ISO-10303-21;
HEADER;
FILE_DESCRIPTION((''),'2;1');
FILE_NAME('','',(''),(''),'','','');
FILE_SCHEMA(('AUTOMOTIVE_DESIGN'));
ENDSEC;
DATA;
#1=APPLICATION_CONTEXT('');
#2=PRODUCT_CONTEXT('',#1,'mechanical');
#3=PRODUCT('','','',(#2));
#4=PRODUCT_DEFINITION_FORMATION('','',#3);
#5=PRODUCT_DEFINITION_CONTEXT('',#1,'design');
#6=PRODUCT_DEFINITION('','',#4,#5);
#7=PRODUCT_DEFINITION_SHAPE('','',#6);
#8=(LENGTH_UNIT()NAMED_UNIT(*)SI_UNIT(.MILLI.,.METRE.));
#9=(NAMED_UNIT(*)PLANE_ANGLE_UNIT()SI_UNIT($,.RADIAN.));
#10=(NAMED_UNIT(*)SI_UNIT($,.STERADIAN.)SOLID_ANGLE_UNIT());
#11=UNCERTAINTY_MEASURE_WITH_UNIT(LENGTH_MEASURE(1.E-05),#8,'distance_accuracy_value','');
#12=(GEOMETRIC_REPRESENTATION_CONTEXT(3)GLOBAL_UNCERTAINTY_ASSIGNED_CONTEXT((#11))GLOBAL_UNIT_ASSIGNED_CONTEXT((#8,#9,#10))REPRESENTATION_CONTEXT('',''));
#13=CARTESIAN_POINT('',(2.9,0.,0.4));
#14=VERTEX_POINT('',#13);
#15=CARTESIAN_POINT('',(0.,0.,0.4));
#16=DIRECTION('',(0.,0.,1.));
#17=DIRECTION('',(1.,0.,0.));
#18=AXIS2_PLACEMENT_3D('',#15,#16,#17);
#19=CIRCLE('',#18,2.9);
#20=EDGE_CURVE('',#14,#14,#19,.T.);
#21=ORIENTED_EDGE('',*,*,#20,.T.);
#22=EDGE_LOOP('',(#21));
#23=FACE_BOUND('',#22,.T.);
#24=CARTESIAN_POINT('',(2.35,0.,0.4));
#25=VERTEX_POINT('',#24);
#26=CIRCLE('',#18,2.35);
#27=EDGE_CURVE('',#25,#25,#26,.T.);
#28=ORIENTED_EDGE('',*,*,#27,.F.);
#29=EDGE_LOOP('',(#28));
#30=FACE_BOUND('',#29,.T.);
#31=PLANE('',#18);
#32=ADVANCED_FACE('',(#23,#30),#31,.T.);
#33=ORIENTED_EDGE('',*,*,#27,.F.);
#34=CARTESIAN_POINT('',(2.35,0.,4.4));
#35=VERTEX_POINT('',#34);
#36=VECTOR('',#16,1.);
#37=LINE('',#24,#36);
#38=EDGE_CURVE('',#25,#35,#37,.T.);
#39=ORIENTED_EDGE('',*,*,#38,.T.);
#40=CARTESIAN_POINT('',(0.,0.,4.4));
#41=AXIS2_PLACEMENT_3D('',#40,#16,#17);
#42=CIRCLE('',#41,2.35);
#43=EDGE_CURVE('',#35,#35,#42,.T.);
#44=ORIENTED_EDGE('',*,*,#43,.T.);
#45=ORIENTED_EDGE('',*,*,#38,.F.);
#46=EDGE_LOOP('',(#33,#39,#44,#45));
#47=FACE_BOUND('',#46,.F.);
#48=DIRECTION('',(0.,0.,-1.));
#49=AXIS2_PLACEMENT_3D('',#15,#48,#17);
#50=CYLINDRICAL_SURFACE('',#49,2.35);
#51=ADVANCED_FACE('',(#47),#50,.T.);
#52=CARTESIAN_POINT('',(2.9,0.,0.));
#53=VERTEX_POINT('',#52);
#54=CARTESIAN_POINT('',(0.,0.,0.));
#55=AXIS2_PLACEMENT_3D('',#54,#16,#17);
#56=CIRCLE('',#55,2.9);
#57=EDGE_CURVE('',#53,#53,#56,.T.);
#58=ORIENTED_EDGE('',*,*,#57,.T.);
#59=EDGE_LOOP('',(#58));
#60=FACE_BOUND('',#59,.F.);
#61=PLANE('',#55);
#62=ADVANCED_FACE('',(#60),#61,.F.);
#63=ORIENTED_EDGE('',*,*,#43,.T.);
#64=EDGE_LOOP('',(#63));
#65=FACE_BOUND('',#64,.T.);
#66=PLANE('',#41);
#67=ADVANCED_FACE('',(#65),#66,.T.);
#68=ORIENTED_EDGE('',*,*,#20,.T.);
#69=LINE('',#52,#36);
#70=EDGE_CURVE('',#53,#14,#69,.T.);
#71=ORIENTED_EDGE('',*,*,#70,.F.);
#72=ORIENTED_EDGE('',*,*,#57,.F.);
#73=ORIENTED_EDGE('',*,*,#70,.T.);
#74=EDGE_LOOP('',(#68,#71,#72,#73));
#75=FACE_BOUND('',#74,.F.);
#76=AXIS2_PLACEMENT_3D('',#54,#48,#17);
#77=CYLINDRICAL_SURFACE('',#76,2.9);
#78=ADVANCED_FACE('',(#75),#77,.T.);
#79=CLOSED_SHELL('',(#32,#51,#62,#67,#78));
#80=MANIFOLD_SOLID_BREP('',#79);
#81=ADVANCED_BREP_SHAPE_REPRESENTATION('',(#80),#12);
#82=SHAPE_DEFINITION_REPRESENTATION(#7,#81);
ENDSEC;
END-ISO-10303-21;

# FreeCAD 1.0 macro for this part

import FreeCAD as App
import Part
import Sketcher
from FreeCAD import Vector

doc = App.newDocument("Part")
body = doc.addObject("PartDesign::Body", "Body")

sketch1 = body.newObject("Sketcher::SketchObject", "Sketch")
sketch1.AttachmentSupport = (doc.getObject("XY_Plane"), [""])
sketch1.MapMode = "FlatFace"
sketch1.addGeometry(Part.Circle(Vector(0, 0, 0), Vector(0, 0, 1), 2.9), False)
sketch1.addConstraint(Sketcher.Constraint("Coincident", 0, 3, -1, 1))
sketch1.addConstraint(Sketcher.Constraint("Diameter", 0, 5.8))
pad1 = body.newObject("PartDesign::Pad", "Pad")
pad1.Profile = sketch1
pad1.Length = 0.4

sketch2 = body.newObject("Sketcher::SketchObject", "Sketch001")
sketch2.AttachmentSupport = (doc.getObject("XY_Plane"), [""])
sketch2.MapMode = "FlatFace"
sketch2.AttachmentOffset = App.Placement(Vector(0, 0, 0.4), App.Rotation())
sketch2.addGeometry(Part.Circle(Vector(0, 0, 0), Vector(0, 0, 1), 2.4), False)
sketch2.addConstraint(Sketcher.Constraint("Coincident", 0, 3, -1, 1))
sketch2.addConstraint(Sketcher.Constraint("Diameter", 0, 4.7))
pad2 = body.newObject("PartDesign::Pad", "Pad001")
pad2.Profile = sketch2
pad2.Length = 4

doc.recompute()
